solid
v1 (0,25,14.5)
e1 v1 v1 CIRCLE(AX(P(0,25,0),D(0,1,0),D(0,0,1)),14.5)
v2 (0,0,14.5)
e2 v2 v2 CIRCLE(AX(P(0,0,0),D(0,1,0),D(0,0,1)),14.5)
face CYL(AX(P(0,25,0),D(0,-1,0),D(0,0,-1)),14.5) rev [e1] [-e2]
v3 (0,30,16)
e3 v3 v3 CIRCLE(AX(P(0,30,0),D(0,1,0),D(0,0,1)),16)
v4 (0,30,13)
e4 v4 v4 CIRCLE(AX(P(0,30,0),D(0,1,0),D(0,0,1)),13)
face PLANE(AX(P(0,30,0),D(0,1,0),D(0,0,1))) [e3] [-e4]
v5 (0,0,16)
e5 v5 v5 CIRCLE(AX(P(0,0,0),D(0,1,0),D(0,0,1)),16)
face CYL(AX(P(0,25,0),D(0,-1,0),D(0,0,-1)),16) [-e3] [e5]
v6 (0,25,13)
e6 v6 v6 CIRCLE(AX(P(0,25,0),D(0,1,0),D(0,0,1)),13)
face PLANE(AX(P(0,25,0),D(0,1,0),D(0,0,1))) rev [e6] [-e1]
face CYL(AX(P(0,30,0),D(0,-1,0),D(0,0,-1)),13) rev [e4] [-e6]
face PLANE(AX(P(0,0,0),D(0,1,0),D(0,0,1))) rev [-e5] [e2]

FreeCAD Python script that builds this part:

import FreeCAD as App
import Part
import Sketcher

V = App.Vector

doc = App.newDocument("Part")
body = doc.addObject("PartDesign::Body", "Body")

# Sketch on XZ plane
sketch1 = body.newObject("Sketcher::SketchObject", "Sketch")
sketch1.AttachmentSupport = (doc.getObject("XZ_Plane"), [""])
sketch1.MapMode = "FlatFace"
sketch1.addGeometry([
    Part.Circle(V(0, 0, 0), V(0, 0, 1), 16),
    Part.Circle(V(0, 0, 0), V(0, 0, 1), 14),
], False)
sketch1.addConstraint([
    Sketcher.Constraint("Coincident", 0, 3, -1, 1),
    Sketcher.Constraint("Coincident", 1, 3, -1, 1),
    Sketcher.Constraint("Diameter", 0, 32.0),
    Sketcher.Constraint("Diameter", 1, 29.0),
])
pad1 = body.newObject("PartDesign::Pad", "Pad")
pad1.Profile = sketch1
pad1.Length = 25
pad1.Reversed = True

# Sketch on XZ plane
sketch2 = body.newObject("Sketcher::SketchObject", "Sketch001")
sketch2.AttachmentSupport = (doc.getObject("XZ_Plane"), [""])
sketch2.MapMode = "FlatFace"
sketch2.AttachmentOffset = App.Placement(V(0, 0, -25), App.Rotation())
sketch2.addGeometry([
    Part.Circle(V(0, 0, 0), V(0, 0, 1), 16),
    Part.Circle(V(0, 0, 0), V(0, 0, 1), 13),
], False)
sketch2.addConstraint([
    Sketcher.Constraint("Coincident", 0, 3, -1, 1),
    Sketcher.Constraint("Coincident", 1, 3, -1, 1),
    Sketcher.Constraint("Diameter", 0, 32.0),
    Sketcher.Constraint("Diameter", 1, 26.0),
])
pad2 = body.newObject("PartDesign::Pad", "Pad001")
pad2.Profile = sketch2
pad2.Length = 5
pad2.Reversed = True

doc.recompute()
